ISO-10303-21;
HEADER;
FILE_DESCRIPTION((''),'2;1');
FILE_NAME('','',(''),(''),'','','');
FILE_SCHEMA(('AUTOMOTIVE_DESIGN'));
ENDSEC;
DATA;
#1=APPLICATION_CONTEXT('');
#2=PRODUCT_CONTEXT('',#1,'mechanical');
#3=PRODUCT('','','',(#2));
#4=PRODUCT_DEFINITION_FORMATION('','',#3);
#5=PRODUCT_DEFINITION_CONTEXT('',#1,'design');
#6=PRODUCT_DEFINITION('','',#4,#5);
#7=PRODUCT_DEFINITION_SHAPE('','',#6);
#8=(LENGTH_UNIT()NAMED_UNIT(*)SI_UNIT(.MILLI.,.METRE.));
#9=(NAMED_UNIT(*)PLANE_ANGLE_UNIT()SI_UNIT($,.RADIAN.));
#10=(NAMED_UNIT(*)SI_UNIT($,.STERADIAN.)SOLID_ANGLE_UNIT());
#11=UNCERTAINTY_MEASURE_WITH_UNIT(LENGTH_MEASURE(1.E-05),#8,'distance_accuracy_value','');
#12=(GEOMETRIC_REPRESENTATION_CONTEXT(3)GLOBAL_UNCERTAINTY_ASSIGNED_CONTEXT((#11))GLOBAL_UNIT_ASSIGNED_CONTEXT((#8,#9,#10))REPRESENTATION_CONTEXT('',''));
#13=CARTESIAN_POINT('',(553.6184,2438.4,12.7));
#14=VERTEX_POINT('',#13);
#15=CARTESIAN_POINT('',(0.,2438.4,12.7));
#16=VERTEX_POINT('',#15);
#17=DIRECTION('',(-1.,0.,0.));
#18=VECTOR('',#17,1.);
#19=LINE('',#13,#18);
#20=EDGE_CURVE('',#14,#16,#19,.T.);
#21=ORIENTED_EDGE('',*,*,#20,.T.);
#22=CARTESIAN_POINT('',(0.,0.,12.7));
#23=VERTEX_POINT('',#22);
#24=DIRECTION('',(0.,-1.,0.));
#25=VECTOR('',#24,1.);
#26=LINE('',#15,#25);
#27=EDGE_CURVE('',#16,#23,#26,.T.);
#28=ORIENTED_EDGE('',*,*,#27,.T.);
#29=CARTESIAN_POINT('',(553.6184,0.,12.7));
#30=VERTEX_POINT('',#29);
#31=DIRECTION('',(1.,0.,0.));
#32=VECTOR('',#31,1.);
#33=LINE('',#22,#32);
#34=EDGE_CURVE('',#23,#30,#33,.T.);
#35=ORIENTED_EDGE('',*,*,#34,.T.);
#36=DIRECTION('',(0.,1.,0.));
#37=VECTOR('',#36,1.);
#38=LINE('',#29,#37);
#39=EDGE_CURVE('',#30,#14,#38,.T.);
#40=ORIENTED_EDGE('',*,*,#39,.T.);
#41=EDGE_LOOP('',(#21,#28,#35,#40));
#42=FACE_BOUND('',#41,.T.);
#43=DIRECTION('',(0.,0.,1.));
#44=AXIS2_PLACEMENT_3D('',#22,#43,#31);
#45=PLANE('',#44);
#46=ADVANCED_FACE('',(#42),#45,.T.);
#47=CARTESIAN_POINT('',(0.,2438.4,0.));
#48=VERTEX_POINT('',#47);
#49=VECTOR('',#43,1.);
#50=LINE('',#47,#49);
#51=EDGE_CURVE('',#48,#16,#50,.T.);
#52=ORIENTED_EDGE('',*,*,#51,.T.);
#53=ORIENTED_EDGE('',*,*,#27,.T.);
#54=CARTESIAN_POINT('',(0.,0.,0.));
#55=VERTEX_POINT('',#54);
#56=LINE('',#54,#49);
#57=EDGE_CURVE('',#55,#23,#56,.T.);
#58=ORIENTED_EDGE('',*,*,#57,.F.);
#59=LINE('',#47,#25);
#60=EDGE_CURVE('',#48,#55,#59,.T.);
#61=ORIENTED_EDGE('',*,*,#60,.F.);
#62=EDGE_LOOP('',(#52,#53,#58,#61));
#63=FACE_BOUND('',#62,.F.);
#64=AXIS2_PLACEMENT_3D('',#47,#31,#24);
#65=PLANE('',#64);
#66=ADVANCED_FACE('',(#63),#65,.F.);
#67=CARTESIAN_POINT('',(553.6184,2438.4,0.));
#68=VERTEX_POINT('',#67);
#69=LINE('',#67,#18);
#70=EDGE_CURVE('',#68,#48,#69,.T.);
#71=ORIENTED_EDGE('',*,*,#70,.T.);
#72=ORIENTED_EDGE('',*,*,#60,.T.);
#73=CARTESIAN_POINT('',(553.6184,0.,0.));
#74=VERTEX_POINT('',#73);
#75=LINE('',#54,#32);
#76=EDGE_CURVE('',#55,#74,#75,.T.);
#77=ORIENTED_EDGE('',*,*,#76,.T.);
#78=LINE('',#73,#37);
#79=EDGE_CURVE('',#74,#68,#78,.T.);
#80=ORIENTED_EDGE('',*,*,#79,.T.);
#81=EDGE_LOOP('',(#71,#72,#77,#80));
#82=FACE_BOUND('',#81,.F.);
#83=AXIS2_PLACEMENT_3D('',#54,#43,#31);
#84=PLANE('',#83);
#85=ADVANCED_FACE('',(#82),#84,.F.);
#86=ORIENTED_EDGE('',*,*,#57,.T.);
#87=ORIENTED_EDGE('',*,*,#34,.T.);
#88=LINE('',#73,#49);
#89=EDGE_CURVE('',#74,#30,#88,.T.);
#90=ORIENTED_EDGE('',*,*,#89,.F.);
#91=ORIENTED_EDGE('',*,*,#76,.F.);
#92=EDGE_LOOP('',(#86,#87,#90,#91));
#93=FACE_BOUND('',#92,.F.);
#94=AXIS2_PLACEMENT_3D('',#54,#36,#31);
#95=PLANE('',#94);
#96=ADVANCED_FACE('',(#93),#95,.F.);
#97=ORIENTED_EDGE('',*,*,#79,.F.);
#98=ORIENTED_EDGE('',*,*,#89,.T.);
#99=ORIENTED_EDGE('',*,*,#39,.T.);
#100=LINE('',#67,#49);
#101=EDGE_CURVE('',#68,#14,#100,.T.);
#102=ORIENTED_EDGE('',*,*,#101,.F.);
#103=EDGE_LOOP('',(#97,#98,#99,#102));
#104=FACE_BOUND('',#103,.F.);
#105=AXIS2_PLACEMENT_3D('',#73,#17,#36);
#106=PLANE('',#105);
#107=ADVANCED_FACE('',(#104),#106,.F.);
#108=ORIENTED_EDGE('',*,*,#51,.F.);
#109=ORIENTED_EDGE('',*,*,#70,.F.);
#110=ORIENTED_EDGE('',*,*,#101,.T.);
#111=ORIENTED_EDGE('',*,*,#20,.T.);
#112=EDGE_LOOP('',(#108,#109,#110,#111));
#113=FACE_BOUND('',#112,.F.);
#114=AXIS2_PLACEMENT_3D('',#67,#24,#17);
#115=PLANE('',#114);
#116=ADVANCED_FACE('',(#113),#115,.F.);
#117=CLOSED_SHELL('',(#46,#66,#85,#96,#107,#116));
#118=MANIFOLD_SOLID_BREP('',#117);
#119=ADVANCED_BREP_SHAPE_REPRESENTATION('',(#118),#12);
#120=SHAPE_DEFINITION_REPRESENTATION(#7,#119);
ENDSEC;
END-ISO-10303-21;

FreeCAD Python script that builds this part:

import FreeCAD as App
import Part
import Sketcher
from FreeCAD import Vector
Q = App.Units.Quantity


def add_polygon(sketch, points):
    """Adds a closed chain of lines whose ends are joined by coincident constraints."""
    first, n = sketch.GeometryCount, len(points)
    for a, b in zip(points, points[1:] + points[:1]):
        sketch.addGeometry(Part.LineSegment(App.Vector(*a, 0), App.Vector(*b, 0)), False)
    for i in range(n):
        sketch.addConstraint(Sketcher.Constraint("Coincident", first + i, 2, first + (i + 1) % n, 1))

doc = App.newDocument("Part")
body = doc.addObject("PartDesign::Body", "Body")

sketch1 = body.newObject("Sketcher::SketchObject", "Sketch")
sketch1.AttachmentSupport = (doc.getObject("XY_Plane"), [""])
sketch1.MapMode = "FlatFace"
add_polygon(sketch1, [(0, 2438.4), (0, 0), (553.6184, 0), (553.6184, 2438.4)])
sketch1.addConstraint(Sketcher.Constraint("Vertical", 0))
sketch1.addConstraint(Sketcher.Constraint("Horizontal", 1))
sketch1.addConstraint(Sketcher.Constraint("Vertical", 2))
sketch1.addConstraint(Sketcher.Constraint("Horizontal", 3))
sketch1.addConstraint(Sketcher.Constraint("Coincident", 0, 2, -1, 1))
sketch1.addConstraint(Sketcher.Constraint("DistanceY", 0, 2, 0, 1, Q("96 in")))
sketch1.addConstraint(Sketcher.Constraint("DistanceX", 1, 1, 1, 2, Q("21.796 in")))
pad1 = body.newObject("PartDesign::Pad", "Pad")
pad1.Profile = sketch1
pad1.Length = Q("0.5 in")

doc.recompute()
